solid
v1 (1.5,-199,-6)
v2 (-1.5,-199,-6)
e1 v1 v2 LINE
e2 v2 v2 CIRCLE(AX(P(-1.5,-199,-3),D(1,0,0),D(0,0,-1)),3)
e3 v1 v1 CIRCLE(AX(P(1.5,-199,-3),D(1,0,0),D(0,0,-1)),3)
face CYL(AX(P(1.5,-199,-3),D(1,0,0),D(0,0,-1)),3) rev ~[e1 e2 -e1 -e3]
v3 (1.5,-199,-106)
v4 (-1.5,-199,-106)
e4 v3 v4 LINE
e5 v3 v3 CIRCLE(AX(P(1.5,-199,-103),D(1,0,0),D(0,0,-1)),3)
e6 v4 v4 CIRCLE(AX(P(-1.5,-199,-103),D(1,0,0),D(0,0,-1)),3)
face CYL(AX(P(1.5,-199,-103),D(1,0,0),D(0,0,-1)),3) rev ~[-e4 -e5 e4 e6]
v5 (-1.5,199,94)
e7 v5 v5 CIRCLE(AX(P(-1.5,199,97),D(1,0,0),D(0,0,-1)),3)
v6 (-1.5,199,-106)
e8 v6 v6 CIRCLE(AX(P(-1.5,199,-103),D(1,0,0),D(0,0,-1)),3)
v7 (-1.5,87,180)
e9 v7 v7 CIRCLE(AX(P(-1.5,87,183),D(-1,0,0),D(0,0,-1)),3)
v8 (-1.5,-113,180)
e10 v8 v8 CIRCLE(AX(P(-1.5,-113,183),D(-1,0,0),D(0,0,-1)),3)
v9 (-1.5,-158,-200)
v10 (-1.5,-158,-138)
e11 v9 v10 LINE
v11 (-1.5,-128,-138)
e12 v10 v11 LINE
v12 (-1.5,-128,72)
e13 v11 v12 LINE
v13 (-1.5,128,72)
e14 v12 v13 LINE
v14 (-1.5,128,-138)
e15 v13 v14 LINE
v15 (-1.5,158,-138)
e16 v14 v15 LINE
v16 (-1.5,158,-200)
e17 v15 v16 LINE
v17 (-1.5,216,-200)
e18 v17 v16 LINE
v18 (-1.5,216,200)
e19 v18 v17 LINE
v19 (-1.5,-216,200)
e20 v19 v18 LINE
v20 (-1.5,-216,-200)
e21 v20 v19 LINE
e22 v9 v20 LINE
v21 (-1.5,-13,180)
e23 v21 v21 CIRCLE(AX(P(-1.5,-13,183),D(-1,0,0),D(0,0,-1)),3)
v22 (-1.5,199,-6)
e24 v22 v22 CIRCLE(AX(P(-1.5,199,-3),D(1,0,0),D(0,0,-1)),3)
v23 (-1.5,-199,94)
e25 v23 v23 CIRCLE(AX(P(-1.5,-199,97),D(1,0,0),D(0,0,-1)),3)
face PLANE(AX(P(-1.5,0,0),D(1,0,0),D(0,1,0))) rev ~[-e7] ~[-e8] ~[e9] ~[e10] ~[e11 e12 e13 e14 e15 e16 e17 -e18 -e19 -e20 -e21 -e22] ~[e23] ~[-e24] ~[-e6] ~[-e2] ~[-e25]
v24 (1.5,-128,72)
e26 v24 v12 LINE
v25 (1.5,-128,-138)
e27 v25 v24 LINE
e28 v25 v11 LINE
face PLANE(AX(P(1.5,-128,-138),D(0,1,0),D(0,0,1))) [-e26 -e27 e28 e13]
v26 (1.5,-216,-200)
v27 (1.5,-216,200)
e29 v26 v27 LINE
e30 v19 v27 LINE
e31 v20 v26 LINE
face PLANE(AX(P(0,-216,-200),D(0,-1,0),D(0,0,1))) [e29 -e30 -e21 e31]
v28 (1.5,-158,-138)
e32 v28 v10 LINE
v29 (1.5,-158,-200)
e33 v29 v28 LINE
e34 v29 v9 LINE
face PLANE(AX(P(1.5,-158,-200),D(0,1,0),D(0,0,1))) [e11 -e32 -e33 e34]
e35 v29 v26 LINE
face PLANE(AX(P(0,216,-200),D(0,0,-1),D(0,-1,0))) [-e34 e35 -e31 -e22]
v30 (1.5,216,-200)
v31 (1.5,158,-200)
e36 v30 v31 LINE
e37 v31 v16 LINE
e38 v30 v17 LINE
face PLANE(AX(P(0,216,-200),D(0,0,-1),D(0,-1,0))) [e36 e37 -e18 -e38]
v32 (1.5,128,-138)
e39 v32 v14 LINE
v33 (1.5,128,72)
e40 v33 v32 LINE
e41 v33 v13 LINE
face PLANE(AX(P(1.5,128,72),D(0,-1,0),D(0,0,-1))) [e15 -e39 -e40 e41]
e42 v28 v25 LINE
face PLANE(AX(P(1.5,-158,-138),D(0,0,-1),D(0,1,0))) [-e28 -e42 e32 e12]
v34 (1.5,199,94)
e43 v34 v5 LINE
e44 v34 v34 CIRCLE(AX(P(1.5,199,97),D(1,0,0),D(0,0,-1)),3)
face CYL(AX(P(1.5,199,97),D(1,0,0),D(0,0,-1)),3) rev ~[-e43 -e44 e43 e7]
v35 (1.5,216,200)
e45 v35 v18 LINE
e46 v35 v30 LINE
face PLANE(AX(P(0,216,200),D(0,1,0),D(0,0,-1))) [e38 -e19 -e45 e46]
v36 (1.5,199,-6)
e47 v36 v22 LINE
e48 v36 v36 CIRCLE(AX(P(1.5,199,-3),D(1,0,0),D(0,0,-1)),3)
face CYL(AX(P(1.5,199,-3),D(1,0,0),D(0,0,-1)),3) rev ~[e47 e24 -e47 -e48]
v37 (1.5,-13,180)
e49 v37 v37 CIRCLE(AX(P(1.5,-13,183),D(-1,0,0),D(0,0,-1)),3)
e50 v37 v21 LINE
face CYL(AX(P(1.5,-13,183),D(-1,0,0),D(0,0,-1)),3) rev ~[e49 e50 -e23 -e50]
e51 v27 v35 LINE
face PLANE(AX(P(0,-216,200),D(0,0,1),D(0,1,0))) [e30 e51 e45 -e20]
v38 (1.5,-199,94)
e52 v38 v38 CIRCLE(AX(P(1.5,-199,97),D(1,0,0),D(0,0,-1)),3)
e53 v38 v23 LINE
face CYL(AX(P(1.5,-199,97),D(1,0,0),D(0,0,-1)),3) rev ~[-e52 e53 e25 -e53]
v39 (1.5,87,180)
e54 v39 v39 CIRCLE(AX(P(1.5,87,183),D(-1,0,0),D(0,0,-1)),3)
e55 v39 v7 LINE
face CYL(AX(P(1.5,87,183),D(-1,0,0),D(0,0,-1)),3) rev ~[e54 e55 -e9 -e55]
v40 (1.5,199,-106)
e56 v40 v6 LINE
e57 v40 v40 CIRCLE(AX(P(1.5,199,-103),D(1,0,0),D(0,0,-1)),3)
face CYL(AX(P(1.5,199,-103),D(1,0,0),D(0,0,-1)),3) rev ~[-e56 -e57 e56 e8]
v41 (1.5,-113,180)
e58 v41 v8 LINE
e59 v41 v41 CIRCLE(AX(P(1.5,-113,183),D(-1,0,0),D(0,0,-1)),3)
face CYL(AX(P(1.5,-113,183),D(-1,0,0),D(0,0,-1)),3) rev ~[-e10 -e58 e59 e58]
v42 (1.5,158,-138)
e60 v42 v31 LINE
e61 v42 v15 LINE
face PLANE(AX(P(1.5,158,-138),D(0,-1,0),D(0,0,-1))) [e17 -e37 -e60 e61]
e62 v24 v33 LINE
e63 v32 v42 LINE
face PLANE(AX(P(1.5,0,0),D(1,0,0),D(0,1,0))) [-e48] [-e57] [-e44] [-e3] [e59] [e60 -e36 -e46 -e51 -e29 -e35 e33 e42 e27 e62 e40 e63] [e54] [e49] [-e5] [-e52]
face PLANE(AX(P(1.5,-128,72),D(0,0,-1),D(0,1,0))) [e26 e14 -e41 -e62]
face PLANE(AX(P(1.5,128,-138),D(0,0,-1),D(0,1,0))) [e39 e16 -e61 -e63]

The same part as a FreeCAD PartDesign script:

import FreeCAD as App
import Part
import Sketcher

V = App.Vector

doc = App.newDocument("Part")
body = doc.addObject("PartDesign::Body", "Body")

# Sketch on YZ plane
sketch1 = body.newObject("Sketcher::SketchObject", "Sketch")
sketch1.AttachmentSupport = (doc.getObject("YZ_Plane"), [""])
sketch1.MapMode = "FlatFace"
sketch1.addGeometry([
    Part.LineSegment(V(216, 200, 0), V(-216, 200, 0)),
    Part.LineSegment(V(-216, 200, 0), V(-216, -200, 0)),
    Part.LineSegment(V(-216, -200, 0), V(216, -200, 0)),
    Part.LineSegment(V(216, -200, 0), V(216, 200, 0)),
], False)
sketch1.addConstraint([
    Sketcher.Constraint("Coincident", 0, 2, 1, 1),
    Sketcher.Constraint("Coincident", 1, 2, 2, 1),
    Sketcher.Constraint("Coincident", 2, 2, 3, 1),
    Sketcher.Constraint("Coincident", 3, 2, 0, 1),
    Sketcher.Constraint("Horizontal", 0),
    Sketcher.Constraint("Vertical", 1),
    Sketcher.Constraint("Horizontal", 2),
    Sketcher.Constraint("Vertical", 3),
    Sketcher.Constraint("Symmetric", 0, 2, 2, 2, -1, 1),
    Sketcher.Constraint("DistanceX", 0, 2, 0, 1, 432.0),
    Sketcher.Constraint("DistanceY", 1, 2, 1, 1, 400.0),
])
pad1 = body.newObject("PartDesign::Pad", "Pad")
pad1.Profile = sketch1
pad1.Length = 3
pad1.Midplane = True

# Sketch on YZ plane
sketch2 = body.newObject("Sketcher::SketchObject", "Sketch001")
sketch2.AttachmentSupport = (doc.getObject("YZ_Plane"), [""])
sketch2.MapMode = "FlatFace"
sketch2.AttachmentOffset = App.Placement(V(0, 0, 1.5), App.Rotation())
sketch2.addGeometry([
    Part.LineSegment(V(-158, -138, 0), V(-158, -200, 0)),  # 0
    Part.LineSegment(V(-158, -200, 0), V(158, -200, 0)),  # 1
    Part.LineSegment(V(158, -200, 0), V(158, -138, 0)),  # 2
    Part.LineSegment(V(158, -138, 0), V(128, -138, 0)),  # 3
    Part.LineSegment(V(128, -138, 0), V(128, 72, 0)),  # 4
    Part.LineSegment(V(128, 72, 0), V(-128, 72, 0)),  # 5
    Part.LineSegment(V(-128, 72, 0), V(-128, -138, 0)),  # 6
    Part.LineSegment(V(-128, -138, 0), V(-158, -138, 0)),  # 7
], False)
sketch2.addConstraint([
    Sketcher.Constraint("Coincident", 0, 2, 1, 1),
    Sketcher.Constraint("Coincident", 1, 2, 2, 1),
    Sketcher.Constraint("Coincident", 2, 2, 3, 1),
    Sketcher.Constraint("Coincident", 3, 2, 4, 1),
    Sketcher.Constraint("Coincident", 4, 2, 5, 1),
    Sketcher.Constraint("Coincident", 5, 2, 6, 1),
    Sketcher.Constraint("Coincident", 6, 2, 7, 1),
    Sketcher.Constraint("Coincident", 7, 2, 0, 1),
    Sketcher.Constraint("Vertical", 0),
    Sketcher.Constraint("Horizontal", 1),
    Sketcher.Constraint("Vertical", 2),
    Sketcher.Constraint("Horizontal", 3),
    Sketcher.Constraint("Vertical", 4),
    Sketcher.Constraint("Horizontal", 5),
    Sketcher.Constraint("Vertical", 6),
    Sketcher.Constraint("Horizontal", 7),
    Sketcher.Constraint("Symmetric", 3, 2, 6, 2, -2),
    Sketcher.Constraint("Equal", 3, 7),
    Sketcher.Constraint("DistanceX", 3, 2, 3, 1, 30.0),
    Sketcher.Constraint("DistanceY", 0, 2, 0, 1, 62.0),
    Sketcher.Constraint("DistanceY", 4, 1, 4, 2, 210.0),
    Sketcher.Constraint("DistanceX", 1, 1, 1, 2, 316.0),
    Sketcher.Constraint("DistanceY", 0, 2, -1, 1, 200.0),
])
pocket1 = body.newObject("PartDesign::Pocket", "Pocket")
pocket1.Profile = sketch2
pocket1.Length = 3

# Sketch on YZ plane
sketch3 = body.newObject("Sketcher::SketchObject", "Sketch002")
sketch3.AttachmentSupport = (doc.getObject("YZ_Plane"), [""])
sketch3.MapMode = "FlatFace"
sketch3.AttachmentOffset = App.Placement(V(0, 0, 1.5), App.Rotation())
sketch3.addGeometry([
    Part.Circle(V(199, -3, 0), V(0, 0, 1), 3),  # 0
    Part.Circle(V(199, -103, 0), V(0, 0, 1), 3),  # 1
    Part.Circle(V(199, 97, 0), V(0, 0, 1), 3),  # 2
    Part.Circle(V(-199, 97, 0), V(0, 0, 1), 3),  # 3
    Part.Circle(V(-199, -3, 0), V(0, 0, 1), 3),  # 4
    Part.Circle(V(-199, -103, 0), V(0, 0, 1), 3),  # 5
], False)
sketch3.addConstraint([
    Sketcher.Constraint("Equal", 0, 1),
    Sketcher.Constraint("Equal", 1, 2),
    Sketcher.Constraint("Equal", 2, 3),
    Sketcher.Constraint("Equal", 3, 4),
    Sketcher.Constraint("Equal", 4, 5),
    Sketcher.Constraint("Symmetric", 2, 3, 3, 3, -2),
    Sketcher.Constraint("Symmetric", 0, 3, 4, 3, -2),
    Sketcher.Constraint("Symmetric", 1, 3, 5, 3, -2),
    Sketcher.Constraint("Vertical", 0, 3, 1, 3),
    Sketcher.Constraint("Vertical", 1, 3, 2, 3),
    Sketcher.Constraint("Diameter", 0, 6.0),
    Sketcher.Constraint("DistanceY", 1, 3, -1, 1, 103.0),
    Sketcher.Constraint("DistanceY", 1, 3, 0, 3, 100.0),
    Sketcher.Constraint("DistanceY", 0, 3, 2, 3, 100.0),
    Sketcher.Constraint("DistanceX", -1, 1, 0, 3, 199.0),
])
pocket2 = body.newObject("PartDesign::Pocket", "Pocket001")
pocket2.Profile = sketch3
pocket2.Length = 3

# Sketch on YZ plane
sketch4 = body.newObject("Sketcher::SketchObject", "Sketch003")
sketch4.AttachmentSupport = (doc.getObject("YZ_Plane"), [""])
sketch4.MapMode = "FlatFace"
sketch4.AttachmentOffset = App.Placement(V(0, 0, 1.5), App.Rotation())
sketch4.addGeometry([
    Part.Circle(V(-113, 183, 0), V(0, 0, 1), 3),
    Part.Circle(V(-13, 183, 0), V(0, 0, 1), 3),
    Part.Circle(V(87, 183, 0), V(0, 0, 1), 3),
], False)
sketch4.addConstraint([
    Sketcher.Constraint("Equal", 0, 1),
    Sketcher.Constraint("Equal", 1, 2),
    Sketcher.Constraint("Horizontal", 0, 3, 1, 3),
    Sketcher.Constraint("Horizontal", 1, 3, 2, 3),
    Sketcher.Constraint("Diameter", 0, 6.0),
    Sketcher.Constraint("DistanceX", 0, 3, -1, 1, 113.0),
    Sketcher.Constraint("DistanceY", -1, 1, 0, 3, 183.0),
    Sketcher.Constraint("DistanceX", 1, 3, -1, 1, 13.0),
    Sketcher.Constraint("DistanceX", -1, 1, 2, 3, 87.0),
])
doc.recompute()
hole = body.newObject("PartDesign::Hole", "Hole")
hole.Profile = sketch4
hole.ThreadType = "None"
hole.Diameter = 6
hole.DepthType = "Dimension"
hole.Depth = 14.2
hole.DrillPoint = "Angled"
hole.DrillPointAngle = 118

doc.recompute()
